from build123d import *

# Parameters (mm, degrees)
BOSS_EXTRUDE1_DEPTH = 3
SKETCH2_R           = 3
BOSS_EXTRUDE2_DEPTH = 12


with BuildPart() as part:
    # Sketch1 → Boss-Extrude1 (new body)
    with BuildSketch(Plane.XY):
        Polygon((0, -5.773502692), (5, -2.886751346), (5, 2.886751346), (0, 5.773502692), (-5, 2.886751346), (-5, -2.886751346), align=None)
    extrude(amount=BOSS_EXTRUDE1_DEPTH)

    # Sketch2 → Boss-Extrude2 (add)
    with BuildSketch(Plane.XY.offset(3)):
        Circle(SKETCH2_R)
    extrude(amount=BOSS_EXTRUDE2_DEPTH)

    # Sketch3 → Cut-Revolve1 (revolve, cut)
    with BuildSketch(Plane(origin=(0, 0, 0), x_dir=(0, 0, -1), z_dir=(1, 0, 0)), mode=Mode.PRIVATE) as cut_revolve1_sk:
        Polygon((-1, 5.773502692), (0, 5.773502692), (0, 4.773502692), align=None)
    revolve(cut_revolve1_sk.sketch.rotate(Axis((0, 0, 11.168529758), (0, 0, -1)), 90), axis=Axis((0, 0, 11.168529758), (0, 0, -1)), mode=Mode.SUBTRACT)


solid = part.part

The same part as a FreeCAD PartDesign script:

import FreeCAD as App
import Part
import Sketcher
Q = App.Units.Quantity


def add_polygon(sketch, points):
    """Adds a closed chain of lines whose ends are joined by coincident constraints."""
    first, n = sketch.GeometryCount, len(points)
    for a, b in zip(points, points[1:] + points[:1]):
        sketch.addGeometry(Part.LineSegment(App.Vector(*a, 0), App.Vector(*b, 0)), False)
    for i in range(n):
        sketch.addConstraint(Sketcher.Constraint("Coincident", first + i, 2, first + (i + 1) % n, 1))

doc = App.newDocument("Part")
params = doc.addObject("Spreadsheet::Sheet", "Params")
for row, (alias, value) in enumerate([
    ("pad1_length", "3 mm"),
    ("sketch2_diameter", "6 mm"),
    ("pad2_length", "12 mm"),
    ("sketch3_width", "1 mm"),
    ("groove_angle", "360 deg"),
], start=1):
    params.set(f"A{row}", alias)
    params.set(f"B{row}", "=" + value)
    params.setAlias(f"B{row}", alias)

body = doc.addObject("PartDesign::Body", "Body")

sketch1 = body.newObject("Sketcher::SketchObject", "Sketch")
sketch1.AttachmentSupport = (doc.getObject("XY_Plane"), [""])
sketch1.MapMode = "FlatFace"
add_polygon(sketch1, [(0, -6), (5, -3), (5, 3), (0, 6), (-5, 3), (-5, -3)])
sketch1.addConstraint([
    Sketcher.Constraint("Vertical", 1),
    Sketcher.Constraint("Vertical", 4),
    Sketcher.Constraint("Symmetric", 0, 2, 3, 2, -1, 1),
    Sketcher.Constraint("Symmetric", 2, 2, 5, 2, -1, 1),
    Sketcher.Constraint("PointOnObject", 2, 2, -2),
    Sketcher.Constraint("Parallel", 2, 5),
    Sketcher.Constraint("Horizontal", 1, 2, 3, 2),
    Sketcher.Constraint("Angle", 0, Q("30 deg")),
    Sketcher.Constraint("DistanceX", -1, 1, 0, 2, 5.0),
    Sketcher.Constraint("DistanceY", 1, 1, 1, 2, 5.773503),
])
pad1 = body.newObject("PartDesign::Pad", "Pad")
pad1.Profile = sketch1
pad1.setExpression("Length", "Params.pad1_length")

sketch2 = body.newObject("Sketcher::SketchObject", "Sketch001")
sketch2.AttachmentSupport = (doc.getObject("XY_Plane"), [""])
sketch2.MapMode = "FlatFace"
sketch2.AttachmentOffset = App.Placement(App.Vector(0, 0, 3), App.Rotation())
sketch2.addGeometry(Part.Circle(App.Vector(0, 0, 0), App.Vector(0, 0, 1), 3), False)
sketch2.addConstraint([
    Sketcher.Constraint("Coincident", 0, 3, -1, 1),
    Sketcher.Constraint("Diameter", 0, 6.0),
])
sketch2.setExpression("Constraints[1]", "Params.sketch2_diameter")
pad2 = body.newObject("PartDesign::Pad", "Pad001")
pad2.Profile = sketch2
pad2.setExpression("Length", "Params.pad2_length")

sketch3 = body.newObject("Sketcher::SketchObject", "Sketch002")
sketch3.AttachmentSupport = (doc.getObject("YZ_Plane"), [""])
sketch3.MapMode = "FlatFace"
add_polygon(sketch3, [(5.8, 0), (5.8, 1), (4.8, 0)])
sketch3.addConstraint([
    Sketcher.Constraint("Vertical", 0),
    Sketcher.Constraint("Horizontal", 2),
    Sketcher.Constraint("PointOnObject", 1, 2, -1),
    Sketcher.Constraint("Equal", 2, 0),
    Sketcher.Constraint("DistanceX", 2, 1, 2, 2, 1.0),
    Sketcher.Constraint("DistanceX", -1, 1, 0, 2, 5.773503),
])
sketch3.setExpression("Constraints[7]", "Params.sketch3_width")
groove = body.newObject("PartDesign::Groove", "Groove")
groove.Profile = sketch3
groove.ReferenceAxis = (sketch3, ["V_Axis"])
groove.setExpression("Angle", "Params.groove_angle")

doc.recompute()
